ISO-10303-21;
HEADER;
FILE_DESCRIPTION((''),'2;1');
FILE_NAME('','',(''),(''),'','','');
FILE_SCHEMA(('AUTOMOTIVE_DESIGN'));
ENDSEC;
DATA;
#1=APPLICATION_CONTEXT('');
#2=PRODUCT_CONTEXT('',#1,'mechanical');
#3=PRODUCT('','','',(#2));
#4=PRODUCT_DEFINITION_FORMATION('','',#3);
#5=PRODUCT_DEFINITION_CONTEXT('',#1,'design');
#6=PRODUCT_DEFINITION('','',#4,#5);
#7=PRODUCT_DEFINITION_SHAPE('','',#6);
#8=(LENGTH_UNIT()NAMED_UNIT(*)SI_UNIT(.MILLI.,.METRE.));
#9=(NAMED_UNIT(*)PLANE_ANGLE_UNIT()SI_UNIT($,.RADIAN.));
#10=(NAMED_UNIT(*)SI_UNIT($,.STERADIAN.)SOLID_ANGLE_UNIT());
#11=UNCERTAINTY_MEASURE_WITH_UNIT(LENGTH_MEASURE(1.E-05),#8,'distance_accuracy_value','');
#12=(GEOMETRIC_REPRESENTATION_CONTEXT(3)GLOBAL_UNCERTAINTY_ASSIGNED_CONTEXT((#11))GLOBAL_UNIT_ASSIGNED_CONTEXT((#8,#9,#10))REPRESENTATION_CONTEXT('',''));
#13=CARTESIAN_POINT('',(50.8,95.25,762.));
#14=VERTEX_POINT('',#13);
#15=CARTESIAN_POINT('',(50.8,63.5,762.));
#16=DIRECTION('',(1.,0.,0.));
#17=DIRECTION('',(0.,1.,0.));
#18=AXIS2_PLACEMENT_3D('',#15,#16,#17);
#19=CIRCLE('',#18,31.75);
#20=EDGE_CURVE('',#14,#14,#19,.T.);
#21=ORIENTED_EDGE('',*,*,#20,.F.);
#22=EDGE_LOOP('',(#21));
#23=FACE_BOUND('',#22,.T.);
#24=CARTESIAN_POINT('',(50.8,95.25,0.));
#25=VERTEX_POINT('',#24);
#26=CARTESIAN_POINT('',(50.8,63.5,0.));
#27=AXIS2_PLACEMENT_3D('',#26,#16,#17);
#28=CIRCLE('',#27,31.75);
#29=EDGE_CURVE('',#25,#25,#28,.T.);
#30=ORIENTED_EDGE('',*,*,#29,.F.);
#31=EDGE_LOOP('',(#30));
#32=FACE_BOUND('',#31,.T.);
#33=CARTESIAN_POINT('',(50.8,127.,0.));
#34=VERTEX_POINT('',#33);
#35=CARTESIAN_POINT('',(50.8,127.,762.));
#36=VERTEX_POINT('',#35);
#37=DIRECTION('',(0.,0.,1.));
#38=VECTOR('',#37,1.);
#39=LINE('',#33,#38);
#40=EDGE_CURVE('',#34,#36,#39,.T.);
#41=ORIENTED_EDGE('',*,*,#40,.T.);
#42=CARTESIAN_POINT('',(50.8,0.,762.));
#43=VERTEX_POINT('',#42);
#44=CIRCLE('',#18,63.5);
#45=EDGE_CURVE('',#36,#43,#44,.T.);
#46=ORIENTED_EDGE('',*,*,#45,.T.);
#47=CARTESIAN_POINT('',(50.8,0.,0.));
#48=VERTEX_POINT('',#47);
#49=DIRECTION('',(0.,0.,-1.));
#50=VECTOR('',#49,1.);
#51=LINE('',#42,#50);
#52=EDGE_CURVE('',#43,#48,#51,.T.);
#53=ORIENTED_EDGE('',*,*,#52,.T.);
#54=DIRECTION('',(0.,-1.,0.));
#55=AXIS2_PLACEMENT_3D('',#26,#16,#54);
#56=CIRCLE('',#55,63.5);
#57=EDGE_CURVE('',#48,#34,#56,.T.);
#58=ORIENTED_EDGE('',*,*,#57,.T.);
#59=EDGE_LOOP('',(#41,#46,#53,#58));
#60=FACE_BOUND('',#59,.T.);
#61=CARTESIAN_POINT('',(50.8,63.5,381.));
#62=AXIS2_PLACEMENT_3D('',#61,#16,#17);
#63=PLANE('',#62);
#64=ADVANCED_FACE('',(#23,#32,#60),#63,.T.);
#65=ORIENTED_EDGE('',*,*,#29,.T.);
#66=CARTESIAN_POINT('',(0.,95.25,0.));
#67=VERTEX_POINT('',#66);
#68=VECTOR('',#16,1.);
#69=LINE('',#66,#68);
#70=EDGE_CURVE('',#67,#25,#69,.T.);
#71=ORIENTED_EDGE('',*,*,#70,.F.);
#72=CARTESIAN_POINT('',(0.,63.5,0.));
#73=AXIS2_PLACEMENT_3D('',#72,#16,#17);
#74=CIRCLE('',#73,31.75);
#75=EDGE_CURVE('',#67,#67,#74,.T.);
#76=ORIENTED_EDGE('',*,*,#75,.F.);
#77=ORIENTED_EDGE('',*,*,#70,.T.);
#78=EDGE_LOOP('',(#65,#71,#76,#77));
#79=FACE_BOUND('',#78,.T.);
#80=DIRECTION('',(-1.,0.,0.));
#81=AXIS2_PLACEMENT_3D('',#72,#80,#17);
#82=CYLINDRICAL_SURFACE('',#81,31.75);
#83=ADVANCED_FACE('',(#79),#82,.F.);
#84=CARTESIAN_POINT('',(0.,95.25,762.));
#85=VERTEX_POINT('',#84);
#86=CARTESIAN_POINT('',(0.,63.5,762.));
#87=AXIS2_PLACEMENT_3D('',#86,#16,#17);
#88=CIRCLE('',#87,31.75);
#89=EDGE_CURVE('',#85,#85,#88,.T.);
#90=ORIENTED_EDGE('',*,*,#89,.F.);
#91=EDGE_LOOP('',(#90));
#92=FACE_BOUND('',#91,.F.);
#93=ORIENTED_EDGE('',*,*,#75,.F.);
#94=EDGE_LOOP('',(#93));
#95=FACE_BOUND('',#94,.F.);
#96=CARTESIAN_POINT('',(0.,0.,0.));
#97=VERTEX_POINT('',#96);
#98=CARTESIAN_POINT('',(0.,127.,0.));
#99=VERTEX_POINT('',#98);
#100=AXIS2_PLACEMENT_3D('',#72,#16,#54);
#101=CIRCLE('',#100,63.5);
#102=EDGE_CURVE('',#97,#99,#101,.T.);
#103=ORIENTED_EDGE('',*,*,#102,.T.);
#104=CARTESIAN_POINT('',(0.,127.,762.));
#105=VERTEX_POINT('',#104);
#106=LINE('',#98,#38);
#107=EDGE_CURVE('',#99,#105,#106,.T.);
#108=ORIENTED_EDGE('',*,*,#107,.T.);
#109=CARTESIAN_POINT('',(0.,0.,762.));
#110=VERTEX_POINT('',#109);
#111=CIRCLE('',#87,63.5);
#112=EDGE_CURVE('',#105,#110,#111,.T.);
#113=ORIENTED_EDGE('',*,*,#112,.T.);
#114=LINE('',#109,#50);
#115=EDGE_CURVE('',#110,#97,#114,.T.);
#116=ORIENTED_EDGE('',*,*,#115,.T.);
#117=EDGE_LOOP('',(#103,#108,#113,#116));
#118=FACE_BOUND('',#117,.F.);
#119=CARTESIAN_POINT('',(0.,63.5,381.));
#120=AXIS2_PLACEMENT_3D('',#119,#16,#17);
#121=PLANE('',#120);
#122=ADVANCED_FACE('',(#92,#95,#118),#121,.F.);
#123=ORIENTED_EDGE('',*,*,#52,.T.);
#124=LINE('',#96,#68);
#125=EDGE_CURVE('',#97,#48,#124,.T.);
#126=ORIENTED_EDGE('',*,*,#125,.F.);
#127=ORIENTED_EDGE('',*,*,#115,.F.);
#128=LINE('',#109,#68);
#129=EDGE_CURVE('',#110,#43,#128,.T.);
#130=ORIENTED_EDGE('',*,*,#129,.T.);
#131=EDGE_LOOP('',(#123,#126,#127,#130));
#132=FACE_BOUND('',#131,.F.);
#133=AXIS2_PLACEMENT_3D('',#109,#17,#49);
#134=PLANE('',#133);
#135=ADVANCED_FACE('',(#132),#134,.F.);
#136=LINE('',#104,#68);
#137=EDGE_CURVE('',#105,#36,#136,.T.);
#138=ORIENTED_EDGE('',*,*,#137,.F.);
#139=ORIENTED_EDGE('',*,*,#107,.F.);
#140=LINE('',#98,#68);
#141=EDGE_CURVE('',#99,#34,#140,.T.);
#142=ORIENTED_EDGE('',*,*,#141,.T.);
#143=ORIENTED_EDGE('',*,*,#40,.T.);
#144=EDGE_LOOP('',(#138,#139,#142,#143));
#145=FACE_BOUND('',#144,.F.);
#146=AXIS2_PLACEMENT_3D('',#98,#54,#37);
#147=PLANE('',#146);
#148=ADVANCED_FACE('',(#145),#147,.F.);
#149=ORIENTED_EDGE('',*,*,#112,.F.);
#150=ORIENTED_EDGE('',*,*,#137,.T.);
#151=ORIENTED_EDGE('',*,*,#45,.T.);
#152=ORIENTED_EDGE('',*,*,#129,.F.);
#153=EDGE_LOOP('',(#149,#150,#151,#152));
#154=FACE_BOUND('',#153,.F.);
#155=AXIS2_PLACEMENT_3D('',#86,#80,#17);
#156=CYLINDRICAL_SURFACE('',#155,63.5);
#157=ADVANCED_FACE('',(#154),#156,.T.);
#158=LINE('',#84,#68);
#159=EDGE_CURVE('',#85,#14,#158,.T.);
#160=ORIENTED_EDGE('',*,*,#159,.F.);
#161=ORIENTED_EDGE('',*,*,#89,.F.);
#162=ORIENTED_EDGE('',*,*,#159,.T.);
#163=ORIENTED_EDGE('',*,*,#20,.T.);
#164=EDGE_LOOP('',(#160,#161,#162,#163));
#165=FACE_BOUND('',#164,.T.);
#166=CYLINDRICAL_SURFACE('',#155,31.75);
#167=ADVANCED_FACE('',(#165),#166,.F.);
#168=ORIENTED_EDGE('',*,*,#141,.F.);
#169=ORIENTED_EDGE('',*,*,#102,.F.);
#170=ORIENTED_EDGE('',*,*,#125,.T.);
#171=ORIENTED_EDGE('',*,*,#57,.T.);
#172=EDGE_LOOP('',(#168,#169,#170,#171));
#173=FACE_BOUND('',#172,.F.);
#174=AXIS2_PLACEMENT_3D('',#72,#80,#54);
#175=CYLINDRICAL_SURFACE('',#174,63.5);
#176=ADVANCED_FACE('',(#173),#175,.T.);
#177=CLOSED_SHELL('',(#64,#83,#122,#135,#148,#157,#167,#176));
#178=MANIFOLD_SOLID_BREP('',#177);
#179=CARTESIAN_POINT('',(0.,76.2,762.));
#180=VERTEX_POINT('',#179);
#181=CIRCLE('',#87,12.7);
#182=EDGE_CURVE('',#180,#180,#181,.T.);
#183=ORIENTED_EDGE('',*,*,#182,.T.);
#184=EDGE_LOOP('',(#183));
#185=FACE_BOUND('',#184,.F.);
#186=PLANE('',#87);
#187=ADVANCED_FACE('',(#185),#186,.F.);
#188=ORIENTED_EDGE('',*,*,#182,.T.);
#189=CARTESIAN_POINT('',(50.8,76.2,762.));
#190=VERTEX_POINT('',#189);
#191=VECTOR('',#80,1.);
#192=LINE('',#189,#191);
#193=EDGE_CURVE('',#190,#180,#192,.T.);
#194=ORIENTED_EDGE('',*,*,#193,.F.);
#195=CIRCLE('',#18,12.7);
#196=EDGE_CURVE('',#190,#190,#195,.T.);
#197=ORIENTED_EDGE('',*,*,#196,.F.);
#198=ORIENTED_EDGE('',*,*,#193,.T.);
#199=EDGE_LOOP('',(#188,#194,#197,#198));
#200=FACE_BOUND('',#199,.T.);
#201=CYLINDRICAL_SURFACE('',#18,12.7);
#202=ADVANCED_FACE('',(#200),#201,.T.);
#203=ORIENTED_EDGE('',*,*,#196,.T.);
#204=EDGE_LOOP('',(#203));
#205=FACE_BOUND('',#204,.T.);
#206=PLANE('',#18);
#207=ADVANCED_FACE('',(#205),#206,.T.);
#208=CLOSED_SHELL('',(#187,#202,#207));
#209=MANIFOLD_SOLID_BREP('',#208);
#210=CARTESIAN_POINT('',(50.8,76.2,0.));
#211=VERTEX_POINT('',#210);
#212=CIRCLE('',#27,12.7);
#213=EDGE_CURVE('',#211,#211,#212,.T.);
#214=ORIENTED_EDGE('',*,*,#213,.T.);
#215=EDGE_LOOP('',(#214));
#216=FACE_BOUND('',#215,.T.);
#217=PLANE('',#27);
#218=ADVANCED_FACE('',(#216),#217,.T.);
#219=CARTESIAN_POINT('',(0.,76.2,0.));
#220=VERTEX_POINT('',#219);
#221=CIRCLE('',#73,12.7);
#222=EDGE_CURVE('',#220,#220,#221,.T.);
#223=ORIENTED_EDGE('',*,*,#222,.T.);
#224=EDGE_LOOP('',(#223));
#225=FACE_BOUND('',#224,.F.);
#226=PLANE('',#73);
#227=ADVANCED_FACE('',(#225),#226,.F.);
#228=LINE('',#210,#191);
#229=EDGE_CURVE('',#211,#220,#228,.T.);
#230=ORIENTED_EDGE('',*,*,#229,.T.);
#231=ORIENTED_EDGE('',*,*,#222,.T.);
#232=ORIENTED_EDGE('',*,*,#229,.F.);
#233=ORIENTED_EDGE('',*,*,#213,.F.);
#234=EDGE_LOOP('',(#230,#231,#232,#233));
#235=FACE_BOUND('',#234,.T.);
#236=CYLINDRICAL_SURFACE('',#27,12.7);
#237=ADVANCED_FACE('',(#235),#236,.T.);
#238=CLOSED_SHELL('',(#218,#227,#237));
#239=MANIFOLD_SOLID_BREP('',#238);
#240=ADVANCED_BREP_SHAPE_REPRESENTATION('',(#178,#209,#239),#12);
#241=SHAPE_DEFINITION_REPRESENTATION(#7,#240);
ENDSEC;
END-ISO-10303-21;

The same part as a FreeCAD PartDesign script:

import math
import FreeCAD as App
import Part
import Sketcher

V = App.Vector
Q = App.Units.Quantity

doc = App.newDocument("Part")
body = doc.addObject("PartDesign::Body", "Body")

sketch1 = body.newObject("Sketcher::SketchObject", "Sketch")
sketch1.AttachmentSupport = (doc.getObject("YZ_Plane"), [""])
sketch1.MapMode = "FlatFace"
sketch1.addGeometry([
    Part.LineSegment(V(0, 762, 0), V(0, 0, 0)),
    Part.ArcOfCircle(Part.Circle(V(64, 0, 0), V(0, 0, 1), 64), math.radians(180), math.radians(360)),
    Part.LineSegment(V(127, 0, 0), V(127, 762, 0)),
    Part.ArcOfCircle(Part.Circle(V(64, 762, 0), V(0, 0, 1), 64), math.radians(0), math.radians(180)),
    Part.Circle(V(64, 0, 0), V(0, 0, 1), 32),
    Part.Circle(V(64, 762, 0), V(0, 0, 1), 32),
], False)
sketch1.addConstraint([
    Sketcher.Constraint("Tangent", 0, 2, 1, 1),
    Sketcher.Constraint("Tangent", 1, 2, 2, 1),
    Sketcher.Constraint("Tangent", 2, 2, 3, 1),
    Sketcher.Constraint("Tangent", 3, 2, 0, 1),
    Sketcher.Constraint("Vertical", 0),
    Sketcher.Constraint("Vertical", 2),
    Sketcher.Constraint("Coincident", 0, 2, -1, 1),
    Sketcher.Constraint("Coincident", 4, 3, 1, 3),
    Sketcher.Constraint("Coincident", 5, 3, 3, 3),
    Sketcher.Constraint("Equal", 4, 5),
    Sketcher.Constraint("Diameter", 4, Q("2.5 in")),
    Sketcher.Constraint("Radius", 1, Q("2.5 in")),
    Sketcher.Constraint("DistanceY", 0, 2, 0, 1, Q("30 in")),
])
pad1 = body.newObject("PartDesign::Pad", "Pad")
pad1.Profile = sketch1
pad1.Length = Q("2 in")
body2 = doc.addObject("PartDesign::Body", "Body001")
body2.AllowCompound = True

sketch2 = body2.newObject("Sketcher::SketchObject", "Sketch001")
sketch2.AttachmentSupport = (doc.getObject("YZ_Plane001"), [""])
sketch2.MapMode = "FlatFace"
sketch2.AttachmentOffset = App.Placement(V(0, 0, 2 * 25.4), App.Rotation())
sketch2.addGeometry([
    Part.Circle(V(64, 762, 0), V(0, 0, 1), 13),
    Part.Circle(V(64, 0, 0), V(0, 0, 1), 13),
], False)
sketch2.addConstraint([
    Sketcher.Constraint("Equal", 0, 1),
    Sketcher.Constraint("PointOnObject", 1, 3, -1),
    Sketcher.Constraint("Vertical", 0, 3, 1, 3),
    Sketcher.Constraint("Diameter", 0, Q("1 in")),
    Sketcher.Constraint("DistanceY", -1, 1, 0, 3, Q("30 in")),
    Sketcher.Constraint("DistanceX", -1, 1, 0, 3, Q("2.5 in")),
])
pad2 = body2.newObject("PartDesign::Pad", "Pad001")
pad2.Profile = sketch2
pad2.Length = Q("2 in")
pad2.Reversed = True

doc.recompute()
